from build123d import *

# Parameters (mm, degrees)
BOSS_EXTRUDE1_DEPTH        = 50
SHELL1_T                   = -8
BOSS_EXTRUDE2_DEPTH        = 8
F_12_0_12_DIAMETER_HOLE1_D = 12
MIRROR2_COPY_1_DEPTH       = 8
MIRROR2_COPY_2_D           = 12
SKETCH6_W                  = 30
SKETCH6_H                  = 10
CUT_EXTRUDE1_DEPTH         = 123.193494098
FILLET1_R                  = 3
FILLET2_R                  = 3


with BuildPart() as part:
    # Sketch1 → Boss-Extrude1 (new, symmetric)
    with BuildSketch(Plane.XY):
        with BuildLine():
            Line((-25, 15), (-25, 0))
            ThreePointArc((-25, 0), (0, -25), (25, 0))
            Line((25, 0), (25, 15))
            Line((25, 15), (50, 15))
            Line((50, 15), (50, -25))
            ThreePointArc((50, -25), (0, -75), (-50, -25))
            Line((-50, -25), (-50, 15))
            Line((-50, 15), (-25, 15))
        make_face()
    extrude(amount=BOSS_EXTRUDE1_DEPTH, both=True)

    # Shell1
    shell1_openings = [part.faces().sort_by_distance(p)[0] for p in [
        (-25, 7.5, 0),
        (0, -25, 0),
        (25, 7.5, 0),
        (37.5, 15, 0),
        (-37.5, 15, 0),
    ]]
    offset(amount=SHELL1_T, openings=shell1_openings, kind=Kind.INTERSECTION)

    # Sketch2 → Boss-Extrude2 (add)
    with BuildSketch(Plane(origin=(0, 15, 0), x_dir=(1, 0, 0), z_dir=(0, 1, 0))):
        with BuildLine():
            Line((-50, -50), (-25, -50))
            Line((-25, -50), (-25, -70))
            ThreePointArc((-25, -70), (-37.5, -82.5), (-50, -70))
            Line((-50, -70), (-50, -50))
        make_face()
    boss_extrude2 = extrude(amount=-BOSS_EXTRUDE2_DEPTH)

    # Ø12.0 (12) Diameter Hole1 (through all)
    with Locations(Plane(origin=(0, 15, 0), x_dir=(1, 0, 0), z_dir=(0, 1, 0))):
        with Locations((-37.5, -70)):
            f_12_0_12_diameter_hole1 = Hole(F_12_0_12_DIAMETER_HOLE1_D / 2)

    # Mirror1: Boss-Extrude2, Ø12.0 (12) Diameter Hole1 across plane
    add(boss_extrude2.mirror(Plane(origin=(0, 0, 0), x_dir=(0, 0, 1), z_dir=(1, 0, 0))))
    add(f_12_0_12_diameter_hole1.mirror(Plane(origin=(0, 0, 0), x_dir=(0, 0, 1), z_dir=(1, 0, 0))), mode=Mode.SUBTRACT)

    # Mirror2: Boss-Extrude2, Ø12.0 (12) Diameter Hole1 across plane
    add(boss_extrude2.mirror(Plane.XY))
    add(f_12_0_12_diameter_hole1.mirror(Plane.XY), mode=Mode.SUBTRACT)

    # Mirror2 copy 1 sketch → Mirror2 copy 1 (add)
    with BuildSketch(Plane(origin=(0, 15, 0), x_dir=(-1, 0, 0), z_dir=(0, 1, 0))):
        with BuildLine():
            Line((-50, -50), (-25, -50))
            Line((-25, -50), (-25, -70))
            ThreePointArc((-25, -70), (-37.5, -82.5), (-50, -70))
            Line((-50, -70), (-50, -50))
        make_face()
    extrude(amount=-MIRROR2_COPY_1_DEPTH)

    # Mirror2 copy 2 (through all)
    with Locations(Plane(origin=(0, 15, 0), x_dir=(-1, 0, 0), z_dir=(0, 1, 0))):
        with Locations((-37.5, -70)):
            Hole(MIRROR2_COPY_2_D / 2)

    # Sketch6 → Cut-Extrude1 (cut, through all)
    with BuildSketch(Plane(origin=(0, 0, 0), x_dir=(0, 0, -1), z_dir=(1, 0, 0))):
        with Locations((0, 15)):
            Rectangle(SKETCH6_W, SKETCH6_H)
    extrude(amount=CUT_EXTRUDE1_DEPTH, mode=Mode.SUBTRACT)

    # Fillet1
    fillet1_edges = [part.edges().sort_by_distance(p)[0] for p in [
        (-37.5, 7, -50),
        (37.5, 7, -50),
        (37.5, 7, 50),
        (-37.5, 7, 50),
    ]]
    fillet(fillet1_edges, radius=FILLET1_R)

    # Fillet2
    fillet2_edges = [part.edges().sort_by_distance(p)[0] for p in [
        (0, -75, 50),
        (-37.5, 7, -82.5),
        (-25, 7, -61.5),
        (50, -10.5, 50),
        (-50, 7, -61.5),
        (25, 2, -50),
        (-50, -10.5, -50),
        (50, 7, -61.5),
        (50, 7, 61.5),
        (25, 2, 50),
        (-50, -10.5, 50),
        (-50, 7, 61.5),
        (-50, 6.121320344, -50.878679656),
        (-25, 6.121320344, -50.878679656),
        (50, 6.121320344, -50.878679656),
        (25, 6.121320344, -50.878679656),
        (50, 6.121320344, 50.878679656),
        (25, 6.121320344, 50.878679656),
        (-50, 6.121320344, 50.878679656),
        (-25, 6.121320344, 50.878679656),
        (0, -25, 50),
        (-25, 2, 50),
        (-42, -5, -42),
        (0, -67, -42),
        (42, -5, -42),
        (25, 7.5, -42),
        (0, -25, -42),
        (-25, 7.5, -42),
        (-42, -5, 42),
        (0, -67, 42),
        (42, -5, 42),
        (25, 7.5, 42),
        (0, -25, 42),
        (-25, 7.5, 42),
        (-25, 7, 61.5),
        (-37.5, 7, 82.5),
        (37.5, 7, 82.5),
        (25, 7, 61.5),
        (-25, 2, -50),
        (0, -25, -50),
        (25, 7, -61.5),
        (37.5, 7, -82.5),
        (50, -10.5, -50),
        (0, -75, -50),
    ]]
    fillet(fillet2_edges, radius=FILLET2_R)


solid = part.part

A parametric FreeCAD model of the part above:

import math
import FreeCAD as App
import Part
import Sketcher

V = App.Vector
Q = App.Units.Quantity


def edges_at(feature, points):
    """Names of the edges that pass closest to the given points."""
    edges = feature.Shape.Edges
    near = lambda p: min(range(len(edges)), key=lambda i: edges[i].distToShape(Part.Vertex(*p))[0])
    return sorted({f"Edge{near(p) + 1}" for p in points})


def faces_at(feature, points):
    """Names of the faces that lie closest to the given points."""
    faces = feature.Shape.Faces
    near = lambda p: min(range(len(faces)), key=lambda i: faces[i].distToShape(Part.Vertex(*p))[0])
    return sorted({f"Face{near(p) + 1}" for p in points})

doc = App.newDocument("Part")
body = doc.addObject("PartDesign::Body", "Body")

# Sketch on XY plane
sketch1 = body.newObject("Sketcher::SketchObject", "Sketch")
sketch1.AttachmentSupport = (doc.getObject("XY_Plane"), [""])
sketch1.MapMode = "FlatFace"
sketch1.addGeometry(Part.LineSegment(V(-25, 0, 0), V(-25, 15, 0)), False)
sketch1.addGeometry(Part.LineSegment(V(-25, 15, 0), V(-50, 15, 0)), False)
sketch1.addGeometry(Part.LineSegment(V(-50, 15, 0), V(-50, -25, 0)), False)
sketch1.addGeometry(Part.ArcOfCircle(Part.Circle(V(0, -25, 0), V(0, 0, 1), 50), math.radians(180), math.radians(360)), False)
sketch1.addGeometry(Part.LineSegment(V(50, -25, 0), V(50, 15, 0)), False)
sketch1.addGeometry(Part.LineSegment(V(50, 15, 0), V(25, 15, 0)), False)
sketch1.addGeometry(Part.LineSegment(V(25, 15, 0), V(25, 0, 0)), False)
sketch1.addGeometry(Part.ArcOfCircle(Part.Circle(V(0, 0, 0), V(0, 0, 1), 25), math.radians(180), math.radians(360)), False)
sketch1.addConstraint(Sketcher.Constraint("Coincident", 0, 2, 1, 1))
sketch1.addConstraint(Sketcher.Constraint("Coincident", 1, 2, 2, 1))
sketch1.addConstraint(Sketcher.Constraint("Tangent", 2, 2, 3, 1))
sketch1.addConstraint(Sketcher.Constraint("Tangent", 3, 2, 4, 1))
sketch1.addConstraint(Sketcher.Constraint("Coincident", 4, 2, 5, 1))
sketch1.addConstraint(Sketcher.Constraint("Coincident", 5, 2, 6, 1))
sketch1.addConstraint(Sketcher.Constraint("Tangent", 6, 2, 7, 2))
sketch1.addConstraint(Sketcher.Constraint("Tangent", 7, 1, 0, 1))
sketch1.addConstraint(Sketcher.Constraint("Vertical", 0))
sketch1.addConstraint(Sketcher.Constraint("Horizontal", 1))
sketch1.addConstraint(Sketcher.Constraint("Vertical", 2))
sketch1.addConstraint(Sketcher.Constraint("Vertical", 4))
sketch1.addConstraint(Sketcher.Constraint("Horizontal", 5))
sketch1.addConstraint(Sketcher.Constraint("Vertical", 6))
sketch1.addConstraint(Sketcher.Constraint("Coincident", 7, 3, -1, 1))
sketch1.addConstraint(Sketcher.Constraint("Symmetric", 1, 2, 4, 2, -2))
sketch1.addConstraint(Sketcher.Constraint("Radius", 3, Q("50 mm")))
sketch1.addConstraint(Sketcher.Constraint("Radius", 7, Q("25 mm")))
sketch1.addConstraint(Sketcher.Constraint("DistanceY", 0, 1, 0, 2, Q("15 mm")))
sketch1.addConstraint(Sketcher.Constraint("DistanceY", 2, 2, 2, 1, Q("40 mm")))
pad1 = body.newObject("PartDesign::Pad", "Pad")
pad1.Profile = sketch1
pad1.Length = 100
pad1.Midplane = True
doc.recompute()

thickness = body.newObject("PartDesign::Thickness", "Thickness")
thickness.Base = (pad1, faces_at(pad1, [
    (-25, 7.5, 0),
    (0, -25, 0),
    (25, 7.5, 0),
    (37.5, 15, 0),
    (-37.5, 15, 0),
]))
thickness.Value = 8
thickness.Reversed = True
thickness.Join = "Intersection"

# Sketch on XZ plane
sketch2 = body.newObject("Sketcher::SketchObject", "Sketch001")
sketch2.AttachmentSupport = (doc.getObject("XZ_Plane"), [""])
sketch2.MapMode = "FlatFace"
sketch2.AttachmentOffset = App.Placement(V(0, 0, -15), App.Rotation())
sketch2.addGeometry(Part.LineSegment(V(-25, 50, 0), V(-50, 50, 0)), False)
sketch2.addGeometry(Part.LineSegment(V(-50, 50, 0), V(-50, 70, 0)), False)
sketch2.addGeometry(Part.ArcOfCircle(Part.Circle(V(-38, 70, 0), V(0, 0, 1), 12), math.radians(0), math.radians(180)), False)
sketch2.addGeometry(Part.LineSegment(V(-25, 70, 0), V(-25, 50, 0)), False)
sketch2.addConstraint(Sketcher.Constraint("Coincident", 0, 2, 1, 1))
sketch2.addConstraint(Sketcher.Constraint("Tangent", 1, 2, 2, 2))
sketch2.addConstraint(Sketcher.Constraint("Tangent", 2, 1, 3, 1))
sketch2.addConstraint(Sketcher.Constraint("Coincident", 3, 2, 0, 1))
sketch2.addConstraint(Sketcher.Constraint("Horizontal", 0))
sketch2.addConstraint(Sketcher.Constraint("Vertical", 1))
sketch2.addConstraint(Sketcher.Constraint("Vertical", 3))
sketch2.addConstraint(Sketcher.Constraint("Radius", 2, Q("12.5 mm")))
sketch2.addConstraint(Sketcher.Constraint("DistanceY", 1, 1, 1, 2, Q("20 mm")))
sketch2.addConstraint(Sketcher.Constraint("DistanceY", -1, 1, 2, 3, Q("70 mm")))
sketch2.addConstraint(Sketcher.Constraint("DistanceX", 0, 2, -1, 1, Q("50 mm")))
pad2 = body.newObject("PartDesign::Pad", "Pad001")
pad2.Profile = sketch2
pad2.Length = 8

# Sketch on XZ plane
sketch3 = body.newObject("Sketcher::SketchObject", "Sketch002")
sketch3.AttachmentSupport = (doc.getObject("XZ_Plane"), [""])
sketch3.MapMode = "FlatFace"
sketch3.AttachmentOffset = App.Placement(V(0, 0, -15), App.Rotation())
sketch3.addGeometry(Part.Circle(V(-38, 70, 0), V(0, 0, 1), 6), False)
sketch3.addConstraint(Sketcher.Constraint("Diameter", 0, Q("12 mm")))
sketch3.addConstraint(Sketcher.Constraint("DistanceY", -1, 1, 0, 3, Q("70 mm")))
sketch3.addConstraint(Sketcher.Constraint("DistanceX", 0, 3, -1, 1, Q("37.5 mm")))
doc.recompute()
hole = body.newObject("PartDesign::Hole", "Hole")
hole.Profile = sketch3
hole.ThreadType = "None"
hole.Diameter = 12
hole.DepthType = "ThroughAll"
hole.Reversed = True
doc.recompute()

mirrored = body.newObject("PartDesign::Mirrored", "Mirrored")
mirrored.Originals = [pad2, hole]
mirrored.MirrorPlane = (doc.getObject("YZ_Plane"), [""])
body.Tip = mirrored
doc.recompute()

mirrored2 = body.newObject("PartDesign::Mirrored", "Mirrored001")
mirrored2.Originals = [pad2, hole]
mirrored2.MirrorPlane = (doc.getObject("XY_Plane"), [""])
body.Tip = mirrored2

# Sketch on XZ plane
sketch4 = body.newObject("Sketcher::SketchObject", "Sketch003")
sketch4.AttachmentSupport = (doc.getObject("XZ_Plane"), [""])
sketch4.MapMode = "FlatFace"
sketch4.AttachmentOffset = App.Placement(V(0, 0, -15), App.Rotation())
sketch4.addGeometry(Part.LineSegment(V(25, -50, 0), V(50, -50, 0)), False)
sketch4.addGeometry(Part.LineSegment(V(50, -50, 0), V(50, -70, 0)), False)
sketch4.addGeometry(Part.ArcOfCircle(Part.Circle(V(37.5, -70, 0), V(0, 0, 1), 12.5), math.radians(180), math.radians(360)), False)
sketch4.addGeometry(Part.LineSegment(V(25, -70, 0), V(25, -50, 0)), False)
sketch4.addConstraint(Sketcher.Constraint("Coincident", 0, 2, 1, 1))
sketch4.addConstraint(Sketcher.Constraint("Tangent", 1, 2, 2, 2))
sketch4.addConstraint(Sketcher.Constraint("Tangent", 2, 1, 3, 1))
sketch4.addConstraint(Sketcher.Constraint("Coincident", 3, 2, 0, 1))
sketch4.addConstraint(Sketcher.Constraint("Horizontal", 0))
sketch4.addConstraint(Sketcher.Constraint("Vertical", 1))
sketch4.addConstraint(Sketcher.Constraint("Vertical", 3))
sketch4.addConstraint(Sketcher.Constraint("Radius", 2, Q("12.5 mm")))
sketch4.addConstraint(Sketcher.Constraint("DistanceY", 1, 2, 1, 1, Q("20 mm")))
sketch4.addConstraint(Sketcher.Constraint("DistanceY", 2, 3, -1, 1, Q("70 mm")))
sketch4.addConstraint(Sketcher.Constraint("DistanceX", -1, 1, 0, 2, Q("50 mm")))
pad3 = body.newObject("PartDesign::Pad", "Pad002")
pad3.Profile = sketch4
pad3.Length = 8

# Sketch on XZ plane
sketch5 = body.newObject("Sketcher::SketchObject", "Sketch004")
sketch5.AttachmentSupport = (doc.getObject("XZ_Plane"), [""])
sketch5.MapMode = "FlatFace"
sketch5.AttachmentOffset = App.Placement(V(0, 0, -15), App.Rotation())
sketch5.addGeometry(Part.Circle(V(38, -70, 0), V(0, 0, 1), 6), False)
sketch5.addConstraint(Sketcher.Constraint("Diameter", 0, Q("12 mm")))
sketch5.addConstraint(Sketcher.Constraint("DistanceY", 0, 3, -1, 1, Q("70 mm")))
sketch5.addConstraint(Sketcher.Constraint("DistanceX", -1, 1, 0, 3, Q("37.5 mm")))
doc.recompute()
hole2 = body.newObject("PartDesign::Hole", "Hole001")
hole2.Profile = sketch5
hole2.ThreadType = "None"
hole2.Diameter = 12
hole2.DepthType = "ThroughAll"
hole2.Reversed = True

# Sketch on YZ plane
sketch6 = body.newObject("Sketcher::SketchObject", "Sketch005")
sketch6.AttachmentSupport = (doc.getObject("YZ_Plane"), [""])
sketch6.MapMode = "FlatFace"
sketch6.addGeometry(Part.LineSegment(V(20, 15, 0), V(10, 15, 0)), False)
sketch6.addGeometry(Part.LineSegment(V(10, 15, 0), V(10, -15, 0)), False)
sketch6.addGeometry(Part.LineSegment(V(10, -15, 0), V(20, -15, 0)), False)
sketch6.addGeometry(Part.LineSegment(V(20, -15, 0), V(20, 15, 0)), False)
sketch6.addConstraint(Sketcher.Constraint("Coincident", 0, 2, 1, 1))
sketch6.addConstraint(Sketcher.Constraint("Coincident", 1, 2, 2, 1))
sketch6.addConstraint(Sketcher.Constraint("Coincident", 2, 2, 3, 1))
sketch6.addConstraint(Sketcher.Constraint("Coincident", 3, 2, 0, 1))
sketch6.addConstraint(Sketcher.Constraint("Horizontal", 0))
sketch6.addConstraint(Sketcher.Constraint("Vertical", 1))
sketch6.addConstraint(Sketcher.Constraint("Horizontal", 2))
sketch6.addConstraint(Sketcher.Constraint("Vertical", 3))
sketch6.addConstraint(Sketcher.Constraint("DistanceX", 0, 2, 0, 1, Q("10 mm")))
sketch6.addConstraint(Sketcher.Constraint("DistanceY", 1, 2, 1, 1, Q("30 mm")))
sketch6.addConstraint(Sketcher.Constraint("DistanceX", -1, 1, 0, 2, Q("10 mm")))
sketch6.addConstraint(Sketcher.Constraint("DistanceY", -1, 1, 0, 2, Q("15 mm")))
pocket1 = body.newObject("PartDesign::Pocket", "Pocket")
pocket1.Profile = sketch6
pocket1.Type = "ThroughAll"
pocket1.Reversed = True
doc.recompute()

fillet = body.newObject("PartDesign::Fillet", "Fillet")
fillet.Base = (pocket1, edges_at(pocket1, [
    (-37.5, 7, -50),
    (37.5, 7, -50),
    (37.5, 7, 50),
    (-37.5, 7, 50),
]))
fillet.Radius = 3
doc.recompute()

fillet2 = body.newObject("PartDesign::Fillet", "Fillet001")
fillet2.Base = (fillet, edges_at(fillet, [
    (0, -75, 50),
    (-37.5, 7, -82.5),
    (-25, 7, -61.5),
    (50, -10.5, 50),
    (-50, 7, -61.5),
    (25, 2, -50),
    (-50, -10.5, -50),
    (50, 7, -61.5),
    (50, 7, 61.5),
    (25, 2, 50),
    (-50, -10.5, 50),
    (-50, 7, 61.5),
    (-50, 6.121, -50.879),
    (-25, 6.121, -50.879),
    (50, 6.121, -50.879),
    (25, 6.121, -50.879),
    (50, 6.121, 50.879),
    (25, 6.121, 50.879),
    (-50, 6.121, 50.879),
    (-25, 6.121, 50.879),
    (0, -25, 50),
    (-25, 2, 50),
    (-42, -5, -42),
    (0, -67, -42),
    (42, -5, -42),
    (25, 7.5, -42),
    (0, -25, -42),
    (-25, 7.5, -42),
    (-42, -5, 42),
    (0, -67, 42),
    (42, -5, 42),
    (25, 7.5, 42),
    (0, -25, 42),
    (-25, 7.5, 42),
    (-25, 7, 61.5),
    (-37.5, 7, 82.5),
    (37.5, 7, 82.5),
    (25, 7, 61.5),
    (-25, 2, -50),
    (0, -25, -50),
    (25, 7, -61.5),
    (37.5, 7, -82.5),
    (50, -10.5, -50),
    (0, -75, -50),
]))
fillet2.Radius = 3

doc.recompute()
